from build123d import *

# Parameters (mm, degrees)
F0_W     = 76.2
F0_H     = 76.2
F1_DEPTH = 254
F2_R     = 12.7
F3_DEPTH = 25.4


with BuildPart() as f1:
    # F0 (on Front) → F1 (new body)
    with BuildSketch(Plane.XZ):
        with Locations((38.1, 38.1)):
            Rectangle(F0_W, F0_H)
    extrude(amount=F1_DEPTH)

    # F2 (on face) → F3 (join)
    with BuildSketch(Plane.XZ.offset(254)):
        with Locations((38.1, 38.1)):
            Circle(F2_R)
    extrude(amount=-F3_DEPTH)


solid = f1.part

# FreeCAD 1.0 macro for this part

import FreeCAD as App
import Part
import Sketcher
from FreeCAD import Vector
Q = App.Units.Quantity

doc = App.newDocument("Part")
params = doc.addObject("Spreadsheet::Sheet", "Params")
for row, (alias, value) in enumerate([
    ("sketch1_width", "3 in"),
    ("pad1_length", "10 in"),
    ("sketch2_diameter", "1 in"),
    ("pad2_length", "1 in"),
], start=1):
    params.set(f"A{row}", alias)
    params.set(f"B{row}", "=" + value)
    params.setAlias(f"B{row}", alias)

body = doc.addObject("PartDesign::Body", "Body")

sketch1 = doc.addObject("Sketcher::SketchObject", "Sketch")
body.addObject(sketch1)
sketch1.AttachmentSupport = (doc.XZ_Plane, [""])
sketch1.MapMode = "FlatFace"
sketch1.addGeometry(Part.LineSegment(Vector(0, 76.2, 0), Vector(0, 0, 0)), False)
sketch1.addGeometry(Part.LineSegment(Vector(0, 0, 0), Vector(76.2, 0, 0)), False)
sketch1.addGeometry(Part.LineSegment(Vector(76.2, 0, 0), Vector(76.2, 76.2, 0)), False)
sketch1.addGeometry(Part.LineSegment(Vector(76.2, 76.2, 0), Vector(0, 76.2, 0)), False)
sketch1.addConstraint(Sketcher.Constraint("Coincident", 0, 2, 1, 1))
sketch1.addConstraint(Sketcher.Constraint("Coincident", 1, 2, 2, 1))
sketch1.addConstraint(Sketcher.Constraint("Coincident", 2, 2, 3, 1))
sketch1.addConstraint(Sketcher.Constraint("Coincident", 3, 2, 0, 1))
sketch1.addConstraint(Sketcher.Constraint("Vertical", 0))
sketch1.addConstraint(Sketcher.Constraint("Horizontal", 1))
sketch1.addConstraint(Sketcher.Constraint("Vertical", 2))
sketch1.addConstraint(Sketcher.Constraint("Horizontal", 3))
sketch1.addConstraint(Sketcher.Constraint("Coincident", 0, 2, -1, 1))
sketch1.addConstraint(Sketcher.Constraint("Equal", 3, 0))
sketch1.addConstraint(Sketcher.Constraint("DistanceX", 1, 1, 1, 2, Q("3 in")))
sketch1.setExpression("Constraints[10]", "Params.sketch1_width")
pad1 = doc.addObject("PartDesign::Pad", "Pad")
body.addObject(pad1)
pad1.Profile = sketch1
pad1.setExpression("Length", "Params.pad1_length")

sketch2 = doc.addObject("Sketcher::SketchObject", "Sketch001")
body.addObject(sketch2)
sketch2.AttachmentSupport = (doc.XZ_Plane, [""])
sketch2.MapMode = "FlatFace"
sketch2.AttachmentOffset = App.Placement(Vector(0, 0, 10 * 25.4), App.Rotation())
sketch2.addGeometry(Part.Circle(Vector(38.1, 38.1, 0), Vector(0, 0, 1), 12.7), False)
sketch2.addConstraint(Sketcher.Constraint("Diameter", 0, Q("1 in")))
sketch2.addConstraint(Sketcher.Constraint("DistanceX", -1, 1, 0, 3, Q("1.5 in")))
sketch2.addConstraint(Sketcher.Constraint("DistanceY", -1, 1, 0, 3, Q("1.5 in")))
sketch2.setExpression("Constraints[0]", "Params.sketch2_diameter")
pad2 = doc.addObject("PartDesign::Pad", "Pad001")
body.addObject(pad2)
pad2.Profile = sketch2
pad2.setExpression("Length", "Params.pad2_length")
pad2.Reversed = True

doc.recompute()
